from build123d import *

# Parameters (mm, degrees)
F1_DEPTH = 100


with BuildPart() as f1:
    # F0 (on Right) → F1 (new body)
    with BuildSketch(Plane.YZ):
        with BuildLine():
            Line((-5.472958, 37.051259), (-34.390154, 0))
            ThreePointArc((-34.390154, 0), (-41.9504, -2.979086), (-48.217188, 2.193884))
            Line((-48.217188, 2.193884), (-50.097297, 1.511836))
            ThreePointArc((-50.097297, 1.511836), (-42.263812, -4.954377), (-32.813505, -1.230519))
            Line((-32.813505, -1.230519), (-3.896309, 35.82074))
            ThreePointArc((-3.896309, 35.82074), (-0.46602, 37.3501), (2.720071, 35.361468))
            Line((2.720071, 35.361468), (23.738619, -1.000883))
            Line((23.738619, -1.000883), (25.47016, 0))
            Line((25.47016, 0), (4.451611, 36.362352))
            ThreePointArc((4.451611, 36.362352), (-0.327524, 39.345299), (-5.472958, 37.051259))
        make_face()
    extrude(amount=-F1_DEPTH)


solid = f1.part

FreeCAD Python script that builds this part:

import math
import FreeCAD as App
import Part
import Sketcher
from FreeCAD import Vector

doc = App.newDocument("Part")
body = doc.addObject("PartDesign::Body", "Body")

# Sketch on YZ plane
sketch1 = body.newObject("Sketcher::SketchObject", "Sketch")
sketch1.AttachmentSupport = (doc.getObject("YZ_Plane"), [""])
sketch1.MapMode = "FlatFace"
sketch1.addGeometry(Part.LineSegment(Vector(-5.472958, 37.051259, 0), Vector(-34.390154, 0, 0)), False)
sketch1.addGeometry(Part.ArcOfCircle(Part.Circle(Vector(-40.696751, 4.922077, 0), Vector(0, 0, 1), 8), math.radians(-160.060723), math.radians(-37.970782)), False)
sketch1.addGeometry(Part.LineSegment(Vector(-48.217188, 2.193884, 0), Vector(-50.097297, 1.511836, 0)), False)
sketch1.addGeometry(Part.ArcOfCircle(Part.Circle(Vector(-40.696751, 4.922075, 0), Vector(0, 0, 1), 10), math.radians(-160.060729), math.radians(-37.970776)), False)
sketch1.addGeometry(Part.LineSegment(Vector(-32.813505, -1.230519, 0), Vector(-3.896309, 35.82074, 0)), False)
sketch1.addGeometry(Part.ArcOfCircle(Part.Circle(Vector(-0.74301, 33.359702, 0), Vector(0, 0, 1), 4), math.radians(30.029214), math.radians(142.029221)), False)
sketch1.addGeometry(Part.LineSegment(Vector(2.720071, 35.361468, 0), Vector(23.738619, -1.000883, 0)), False)
sketch1.addGeometry(Part.LineSegment(Vector(23.738619, -1.000883, 0), Vector(25.47016, 0, 0)), False)
sketch1.addGeometry(Part.LineSegment(Vector(25.47016, 0, 0), Vector(4.451611, 36.362352, 0)), False)
sketch1.addGeometry(Part.ArcOfCircle(Part.Circle(Vector(-0.74301, 33.359702, 0), Vector(0, 0, 1), 6), math.radians(30.029222), math.radians(142.029224)), False)
sketch1.addConstraint(Sketcher.Constraint("Tangent", 0, 2, 1, 2))
sketch1.addConstraint(Sketcher.Constraint("Coincident", 1, 1, 2, 1))
sketch1.addConstraint(Sketcher.Constraint("Coincident", 2, 2, 3, 1))
sketch1.addConstraint(Sketcher.Constraint("Tangent", 3, 2, 4, 1))
sketch1.addConstraint(Sketcher.Constraint("Tangent", 4, 2, 5, 2))
sketch1.addConstraint(Sketcher.Constraint("Tangent", 5, 1, 6, 1))
sketch1.addConstraint(Sketcher.Constraint("Coincident", 6, 2, 7, 1))
sketch1.addConstraint(Sketcher.Constraint("Coincident", 7, 2, 8, 1))
sketch1.addConstraint(Sketcher.Constraint("Tangent", 8, 2, 9, 1))
sketch1.addConstraint(Sketcher.Constraint("Tangent", 9, 2, 0, 1))
sketch1.addConstraint(Sketcher.Constraint("Coincident", 3, 3, 1, 3))
sketch1.addConstraint(Sketcher.Constraint("Coincident", 9, 3, 5, 3))
sketch1.addConstraint(Sketcher.Constraint("PointOnObject", 0, 2, -1))
sketch1.addConstraint(Sketcher.Constraint("PointOnObject", 7, 2, -1))
sketch1.addConstraint(Sketcher.Constraint("Parallel", 0, 4))
sketch1.addConstraint(Sketcher.Constraint("Perpendicular", 6, 7))
sketch1.addConstraint(Sketcher.Constraint("Perpendicular", 7, 8))
sketch1.addConstraint(Sketcher.Constraint("Radius", 1, 8.0))
sketch1.addConstraint(Sketcher.Constraint("Radius", 3, 10.0))
sketch1.addConstraint(Sketcher.Constraint("Radius", 5, 4.0))
sketch1.addConstraint(Sketcher.Constraint("Distance", 0, 47.0))
sketch1.addConstraint(Sketcher.Constraint("Distance", 6, 41.999999))
sketch1.addConstraint(Sketcher.Constraint("DistanceY", -1, 1, 5, 3, 33.359702))
sketch1.addConstraint(Sketcher.Constraint("DistanceX", 1, 3, -1, 1, 40.696751))
sketch1.addConstraint(Sketcher.Constraint("DistanceX", 1, 1, -1, 1, 48.217188))
sketch1.addConstraint(Sketcher.Constraint("DistanceX", 2, 2, 1, 1, 1.880109))
pad1 = body.newObject("PartDesign::Pad", "Pad")
pad1.Profile = sketch1
pad1.Length = 100
pad1.Reversed = True

doc.recompute()
